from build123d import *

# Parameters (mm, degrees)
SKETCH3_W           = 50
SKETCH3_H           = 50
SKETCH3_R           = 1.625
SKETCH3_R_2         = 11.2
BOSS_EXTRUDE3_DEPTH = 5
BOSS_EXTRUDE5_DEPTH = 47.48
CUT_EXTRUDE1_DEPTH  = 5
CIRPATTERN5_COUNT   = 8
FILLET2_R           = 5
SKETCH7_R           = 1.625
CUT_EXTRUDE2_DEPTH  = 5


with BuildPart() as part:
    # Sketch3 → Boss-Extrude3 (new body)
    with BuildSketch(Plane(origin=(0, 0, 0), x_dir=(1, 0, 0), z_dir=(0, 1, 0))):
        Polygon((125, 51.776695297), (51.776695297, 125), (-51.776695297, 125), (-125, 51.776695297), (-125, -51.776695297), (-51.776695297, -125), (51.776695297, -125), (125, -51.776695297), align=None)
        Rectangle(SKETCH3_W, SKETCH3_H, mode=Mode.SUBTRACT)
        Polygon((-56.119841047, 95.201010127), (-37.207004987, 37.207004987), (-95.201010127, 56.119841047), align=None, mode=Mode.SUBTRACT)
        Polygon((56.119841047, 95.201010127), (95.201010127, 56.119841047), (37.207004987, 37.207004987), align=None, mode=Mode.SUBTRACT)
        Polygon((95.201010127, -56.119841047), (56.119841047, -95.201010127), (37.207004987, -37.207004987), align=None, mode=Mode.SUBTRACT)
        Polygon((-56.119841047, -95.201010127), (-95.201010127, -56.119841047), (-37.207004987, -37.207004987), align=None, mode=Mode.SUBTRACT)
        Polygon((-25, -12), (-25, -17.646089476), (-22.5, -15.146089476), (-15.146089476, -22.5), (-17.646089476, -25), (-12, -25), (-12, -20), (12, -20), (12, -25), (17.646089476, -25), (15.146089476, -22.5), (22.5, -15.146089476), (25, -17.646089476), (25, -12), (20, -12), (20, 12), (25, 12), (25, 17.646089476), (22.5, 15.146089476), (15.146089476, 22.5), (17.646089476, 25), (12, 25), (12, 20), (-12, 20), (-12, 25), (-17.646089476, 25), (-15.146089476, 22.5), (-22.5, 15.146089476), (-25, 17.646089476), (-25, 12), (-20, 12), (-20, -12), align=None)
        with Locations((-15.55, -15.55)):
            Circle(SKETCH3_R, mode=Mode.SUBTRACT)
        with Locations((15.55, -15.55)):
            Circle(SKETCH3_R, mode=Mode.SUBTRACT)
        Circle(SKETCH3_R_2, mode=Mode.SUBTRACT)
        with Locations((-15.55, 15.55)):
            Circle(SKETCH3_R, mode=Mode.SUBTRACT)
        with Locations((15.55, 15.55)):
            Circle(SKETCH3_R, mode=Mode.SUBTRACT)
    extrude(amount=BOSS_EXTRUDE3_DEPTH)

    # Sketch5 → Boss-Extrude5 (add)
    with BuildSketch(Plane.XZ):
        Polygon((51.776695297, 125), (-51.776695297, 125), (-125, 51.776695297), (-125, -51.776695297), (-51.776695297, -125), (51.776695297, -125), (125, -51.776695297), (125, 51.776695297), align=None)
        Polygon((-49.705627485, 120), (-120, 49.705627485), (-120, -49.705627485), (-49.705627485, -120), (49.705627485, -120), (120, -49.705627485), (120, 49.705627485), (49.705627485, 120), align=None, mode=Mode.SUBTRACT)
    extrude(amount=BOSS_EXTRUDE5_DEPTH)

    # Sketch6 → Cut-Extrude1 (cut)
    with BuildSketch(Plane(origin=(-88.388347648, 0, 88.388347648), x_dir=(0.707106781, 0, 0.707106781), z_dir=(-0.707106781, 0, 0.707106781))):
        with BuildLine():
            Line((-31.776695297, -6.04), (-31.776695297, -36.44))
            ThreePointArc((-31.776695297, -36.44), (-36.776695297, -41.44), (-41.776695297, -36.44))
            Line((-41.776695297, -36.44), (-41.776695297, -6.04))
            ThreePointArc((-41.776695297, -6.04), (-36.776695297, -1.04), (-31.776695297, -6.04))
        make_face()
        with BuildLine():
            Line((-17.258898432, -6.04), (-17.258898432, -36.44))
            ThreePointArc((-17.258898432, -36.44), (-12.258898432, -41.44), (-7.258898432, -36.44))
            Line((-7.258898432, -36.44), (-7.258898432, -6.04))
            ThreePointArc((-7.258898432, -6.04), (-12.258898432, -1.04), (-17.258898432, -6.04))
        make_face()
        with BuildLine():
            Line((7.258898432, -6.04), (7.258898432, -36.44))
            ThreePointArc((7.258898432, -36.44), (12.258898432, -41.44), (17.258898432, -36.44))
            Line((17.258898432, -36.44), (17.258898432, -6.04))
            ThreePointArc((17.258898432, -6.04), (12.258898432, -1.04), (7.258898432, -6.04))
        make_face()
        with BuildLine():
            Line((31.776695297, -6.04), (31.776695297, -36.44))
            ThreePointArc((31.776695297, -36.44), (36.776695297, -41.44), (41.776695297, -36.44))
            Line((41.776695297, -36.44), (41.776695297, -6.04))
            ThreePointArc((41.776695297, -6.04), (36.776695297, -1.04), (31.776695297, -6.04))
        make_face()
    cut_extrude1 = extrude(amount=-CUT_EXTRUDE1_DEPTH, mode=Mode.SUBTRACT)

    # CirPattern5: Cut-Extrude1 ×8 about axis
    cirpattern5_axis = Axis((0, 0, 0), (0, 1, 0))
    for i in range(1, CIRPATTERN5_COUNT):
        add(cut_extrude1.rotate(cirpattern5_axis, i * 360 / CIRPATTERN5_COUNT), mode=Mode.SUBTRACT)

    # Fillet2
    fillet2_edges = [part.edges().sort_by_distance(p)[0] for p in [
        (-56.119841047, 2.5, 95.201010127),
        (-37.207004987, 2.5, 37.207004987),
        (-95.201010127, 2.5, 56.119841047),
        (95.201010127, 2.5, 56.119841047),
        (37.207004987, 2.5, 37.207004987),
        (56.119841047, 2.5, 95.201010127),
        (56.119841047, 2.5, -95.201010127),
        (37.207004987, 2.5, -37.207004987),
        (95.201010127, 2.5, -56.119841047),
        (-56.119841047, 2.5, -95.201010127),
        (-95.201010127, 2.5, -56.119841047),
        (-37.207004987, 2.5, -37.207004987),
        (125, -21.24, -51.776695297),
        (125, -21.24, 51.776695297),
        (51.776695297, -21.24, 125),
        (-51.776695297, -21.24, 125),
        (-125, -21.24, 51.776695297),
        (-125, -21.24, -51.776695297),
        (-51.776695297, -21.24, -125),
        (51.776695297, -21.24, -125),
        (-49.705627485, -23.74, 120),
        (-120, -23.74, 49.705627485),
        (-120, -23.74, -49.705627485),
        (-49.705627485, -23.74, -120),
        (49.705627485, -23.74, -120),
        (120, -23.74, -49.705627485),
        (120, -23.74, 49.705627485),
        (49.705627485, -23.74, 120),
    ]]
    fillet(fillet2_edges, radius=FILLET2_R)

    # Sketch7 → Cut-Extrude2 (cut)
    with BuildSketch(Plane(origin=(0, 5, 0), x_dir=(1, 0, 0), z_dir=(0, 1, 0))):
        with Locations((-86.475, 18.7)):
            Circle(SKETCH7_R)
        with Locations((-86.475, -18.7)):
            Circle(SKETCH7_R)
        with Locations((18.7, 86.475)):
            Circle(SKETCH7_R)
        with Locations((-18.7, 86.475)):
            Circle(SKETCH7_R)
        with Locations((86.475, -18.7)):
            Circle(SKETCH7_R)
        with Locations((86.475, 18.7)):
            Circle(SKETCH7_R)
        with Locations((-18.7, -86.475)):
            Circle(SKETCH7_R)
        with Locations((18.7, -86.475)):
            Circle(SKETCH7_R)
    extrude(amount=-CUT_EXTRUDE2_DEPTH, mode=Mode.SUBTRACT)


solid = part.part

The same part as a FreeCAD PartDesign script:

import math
import FreeCAD as App
import Part
import Sketcher
Q = App.Units.Quantity


def edges_at(feature, points):
    """Names of the edges that pass closest to the given points."""
    edges = feature.Shape.Edges
    near = lambda p: min(range(len(edges)), key=lambda i: edges[i].distToShape(Part.Vertex(*p))[0])
    return sorted({f"Edge{near(p) + 1}" for p in points})


def add_polygon(sketch, points):
    """Adds a closed chain of lines whose ends are joined by coincident constraints."""
    first, n = sketch.GeometryCount, len(points)
    for a, b in zip(points, points[1:] + points[:1]):
        sketch.addGeometry(Part.LineSegment(App.Vector(*a, 0), App.Vector(*b, 0)), False)
    for i in range(n):
        sketch.addConstraint(Sketcher.Constraint("Coincident", first + i, 2, first + (i + 1) % n, 1))

doc = App.newDocument("Part")
params = doc.addObject("Spreadsheet::Sheet", "Params")
for row, (alias, value) in enumerate([
    ("sketch1_diameter", "22.4 mm"),
    ("sketch1_diameter2", "3.25 mm"),
    ("sketch1_width", "24 mm"),
    ("sketch1_width2", "5 mm"),
    ("sketch1_length", "61 mm"),
    ("pad1_length", "5 mm"),
    ("pad2_length", "47.48 mm"),
    ("sketch3_radius", "5 mm"),
    ("sketch3_height", "30.4 mm"),
    ("pocket1_length", "5 mm"),
    ("fillet_radius", "5 mm"),
    ("sketch4_diameter", "3.25 mm"),
    ("pocket2_length", "5 mm"),
], start=1):
    params.set(f"A{row}", alias)
    params.set(f"B{row}", "=" + value)
    params.setAlias(f"B{row}", alias)

body = doc.addObject("PartDesign::Body", "Body")

# Sketch on XZ plane
sketch1 = doc.addObject("Sketcher::SketchObject", "Sketch")
body.addObject(sketch1)
sketch1.AttachmentSupport = (doc.XZ_Plane, [""])
sketch1.MapMode = "FlatFace"
add_polygon(sketch1, [(125, -51.8), (51.8, -125), (-51.8, -125), (-125, -51.8), (-125, 51.8), (-51.8, 125), (51.8, 125), (125, 51.8)])  # lines 0-7
add_polygon(sketch1, [(-37.2, 37.2), (-56.1, 95.2), (-95.2, 56.1)])  # lines 8-10
add_polygon(sketch1, [(-17.6, 25), (-25, 25), (-25, 17.6), (-22.5, 15.1), (-15.1, 22.5)])  # lines 11-15
sketch1.addGeometry(Part.Circle(App.Vector(-15.6, 15.6, 0), App.Vector(0, 0, 1), 1.6), False)  # 16
add_polygon(sketch1, [(37.2, 37.2), (95.2, 56.1), (56.1, 95.2)])  # lines 17-19
add_polygon(sketch1, [(12, 25), (-12, 25), (-12, 20), (12, 20)])  # lines 20-23
add_polygon(sketch1, [(25, 25), (17.6, 25), (15.1, 22.5), (22.5, 15.1), (25, 17.6)])  # lines 24-28
sketch1.addGeometry(Part.Circle(App.Vector(15.6, 15.6, 0), App.Vector(0, 0, 1), 1.6), False)  # 29
add_polygon(sketch1, [(-25, 12), (-25, -12), (-20, -12), (-20, 12)])  # lines 30-33
sketch1.addGeometry(Part.Circle(App.Vector(-15.6, -15.6, 0), App.Vector(0, 0, 1), 1.6), False)  # 34
add_polygon(sketch1, [(-25, -17.6), (-25, -25), (-17.6, -25), (-15.1, -22.5), (-22.5, -15.1)])  # lines 35-39
add_polygon(sketch1, [(-95.2, -56.1), (-56.1, -95.2), (-37.2, -37.2)])  # lines 40-42
sketch1.addGeometry(Part.Circle(App.Vector(0, 0, 0), App.Vector(0, 0, 1), 11.2), False)  # 43
add_polygon(sketch1, [(25, -12), (25, 12), (20, 12), (20, -12)])  # lines 44-47
add_polygon(sketch1, [(-12, -25), (12, -25), (12, -20), (-12, -20)])  # lines 48-51
sketch1.addGeometry(Part.Circle(App.Vector(15.6, -15.6, 0), App.Vector(0, 0, 1), 1.6), False)  # 52
add_polygon(sketch1, [(25, -25), (25, -17.6), (22.5, -15.1), (15.1, -22.5), (17.6, -25)])  # lines 53-57
add_polygon(sketch1, [(37.2, -37.2), (56.1, -95.2), (95.2, -56.1)])  # lines 58-60
sketch1.addConstraint([
    Sketcher.Constraint("Horizontal", 1),
    Sketcher.Constraint("Vertical", 3),
    Sketcher.Constraint("Horizontal", 5),
    Sketcher.Constraint("Vertical", 7),
    Sketcher.Constraint("Horizontal", 11),
    Sketcher.Constraint("Vertical", 12),
    Sketcher.Constraint("Horizontal", 20),
    Sketcher.Constraint("Vertical", 21),
    Sketcher.Constraint("Horizontal", 22),
    Sketcher.Constraint("Vertical", 23),
    Sketcher.Constraint("Horizontal", 24),
    Sketcher.Constraint("Vertical", 28),
    Sketcher.Constraint("Vertical", 30),
    Sketcher.Constraint("Horizontal", 31),
    Sketcher.Constraint("Vertical", 32),
    Sketcher.Constraint("Horizontal", 33),
    Sketcher.Constraint("Vertical", 35),
    Sketcher.Constraint("Horizontal", 36),
    Sketcher.Constraint("Vertical", 44),
    Sketcher.Constraint("Horizontal", 45),
    Sketcher.Constraint("Vertical", 46),
    Sketcher.Constraint("Horizontal", 47),
    Sketcher.Constraint("Horizontal", 48),
    Sketcher.Constraint("Vertical", 49),
    Sketcher.Constraint("Horizontal", 50),
    Sketcher.Constraint("Vertical", 51),
    Sketcher.Constraint("Vertical", 53),
    Sketcher.Constraint("Horizontal", 57),
    Sketcher.Constraint("Coincident", 43, 3, -1, 1),
    Sketcher.Constraint("Equal", 16, 29),
    Sketcher.Constraint("Equal", 29, 34),
    Sketcher.Constraint("Equal", 34, 52),
    Sketcher.Constraint("Symmetric", 29, 3, 34, 3, -1, 1),
    Sketcher.Constraint("Symmetric", 16, 3, 52, 3, -1, 1),
    Sketcher.Constraint("Symmetric", 0, 2, 4, 2, -1, 1),
    Sketcher.Constraint("Symmetric", 2, 2, 6, 2, -1, 1),
    Sketcher.Constraint("Symmetric", 28, 2, 35, 2, -1, 1),
    Sketcher.Constraint("Symmetric", 25, 2, 37, 2, -1, 1),
    Sketcher.Constraint("Symmetric", 26, 2, 38, 2, -1, 1),
    Sketcher.Constraint("Symmetric", 18, 2, 40, 2, -1, 1),
    Sketcher.Constraint("Symmetric", 19, 2, 41, 2, -1, 1),
    Sketcher.Constraint("Symmetric", 17, 2, 42, 2, -1, 1),
    Sketcher.Constraint("Symmetric", 30, 2, 44, 2, -1, 1),
    Sketcher.Constraint("Symmetric", 32, 2, 46, 2, -1, 1),
    Sketcher.Constraint("Symmetric", 20, 2, 48, 2, -1, 1),
    Sketcher.Constraint("Symmetric", 22, 2, 50, 2, -1, 1),
    Sketcher.Constraint("Symmetric", 12, 2, 53, 2, -1, 1),
    Sketcher.Constraint("Symmetric", 13, 2, 54, 2, -1, 1),
    Sketcher.Constraint("Symmetric", 14, 2, 55, 2, -1, 1),
    Sketcher.Constraint("Symmetric", 15, 2, 56, 2, -1, 1),
    Sketcher.Constraint("Symmetric", 8, 2, 58, 2, -1, 1),
    Sketcher.Constraint("Symmetric", 9, 2, 59, 2, -1, 1),
    Sketcher.Constraint("Symmetric", 10, 2, 60, 2, -1, 1),
    Sketcher.Constraint("Symmetric", 16, 3, 29, 3, -2),
    Sketcher.Constraint("Symmetric", 9, 2, 17, 2, -2),
    Sketcher.Constraint("Symmetric", 8, 2, 18, 2, -2),
    Sketcher.Constraint("Symmetric", 10, 2, 19, 2, -2),
    Sketcher.Constraint("Symmetric", 15, 2, 24, 2, -2),
    Sketcher.Constraint("Symmetric", 14, 2, 25, 2, -2),
    Sketcher.Constraint("Symmetric", 13, 2, 26, 2, -2),
    Sketcher.Constraint("Symmetric", 12, 2, 27, 2, -2),
    Sketcher.Constraint("Perpendicular", 0, 2),
    Sketcher.Constraint("Perpendicular", 2, 4),
    Sketcher.Constraint("Perpendicular", 4, 6),
    Sketcher.Constraint("Perpendicular", 6, 9),
    Sketcher.Constraint("Perpendicular", 9, 13),
    Sketcher.Constraint("Perpendicular", 13, 14),
    Sketcher.Constraint("Perpendicular", 14, 15),
    Sketcher.Constraint("Perpendicular", 8, 17),
    Sketcher.Constraint("Parallel", 15, 18),
    Sketcher.Constraint("Parallel", 27, 37),
    Sketcher.Constraint("Perpendicular", 38, 39),
    Sketcher.Constraint("Horizontal", 3, 2, 6, 2),
    Sketcher.Constraint("Horizontal", 15, 2, 20, 2),
    Sketcher.Constraint("Horizontal", 33, 2, 44, 2),
    Sketcher.Constraint("Vertical", 12, 2, 30, 2),
    Sketcher.Constraint("Vertical", 23, 2, 48, 2),
    Sketcher.Constraint("Equal", 5, 3),
    Sketcher.Constraint("Equal", 57, 12),
    Sketcher.Constraint("Equal", 47, 21),
    Sketcher.Constraint("Equal", 50, 30),
    Sketcher.Constraint("Diameter", 43, Q("22.4 mm")),
    Sketcher.Constraint("Diameter", 16, Q("3.25 mm")),
    Sketcher.Constraint("DistanceX", 20, 2, 20, 1, Q("24 mm")),
    Sketcher.Constraint("DistanceX", 31, 1, 31, 2, Q("5 mm")),
    Sketcher.Constraint("Distance", 8, Q("61 mm")),
    Sketcher.Constraint("DistanceY", 0, 2, -1, 1, Q("125 mm")),
    Sketcher.Constraint("DistanceX", 11, 2, -1, 1, Q("25 mm")),
    Sketcher.Constraint("DistanceY", -1, 1, 11, 2, Q("25 mm")),
    Sketcher.Constraint("Distance", 14, Q("10.4 mm")),
    Sketcher.Constraint("DistanceX", 13, 2, -1, 1, Q("22.5 mm")),
    Sketcher.Constraint("DistanceX", 16, 3, -1, 1, Q("15.55 mm")),
    Sketcher.Constraint("DistanceY", -1, 1, 16, 3, Q("15.55 mm")),
    Sketcher.Constraint("DistanceX", 1, 2, 1, 1, Q("103.553391 mm")),
    Sketcher.Constraint("Distance", 9, Q("55.269119 mm")),
    Sketcher.Constraint("DistanceX", 8, 2, -1, 1, Q("56.119841 mm")),
    Sketcher.Constraint("DistanceY", -1, 1, 8, 2, Q("95.20101 mm")),
])
sketch1.setExpression("Constraints[137]", "Params.sketch1_diameter")
sketch1.setExpression("Constraints[138]", "Params.sketch1_diameter2")
sketch1.setExpression("Constraints[139]", "Params.sketch1_width")
sketch1.setExpression("Constraints[140]", "Params.sketch1_width2")
sketch1.setExpression("Constraints[141]", "Params.sketch1_length")
pad1 = doc.addObject("PartDesign::Pad", "Pad")
body.addObject(pad1)
pad1.Profile = sketch1
pad1.setExpression("Length", "Params.pad1_length")
pad1.Reversed = True

# Sketch on XZ plane
sketch2 = doc.addObject("Sketcher::SketchObject", "Sketch001")
body.addObject(sketch2)
sketch2.AttachmentSupport = (doc.XZ_Plane, [""])
sketch2.MapMode = "FlatFace"
add_polygon(sketch2, [(52, 125), (-52, 125), (-125, 52), (-125, -52), (-52, -125), (52, -125), (125, -52), (125, 52)])  # lines 0-7
add_polygon(sketch2, [(-120, 50), (-50, 120), (50, 120), (120, 50), (120, -50), (50, -120), (-50, -120), (-120, -50)])  # lines 8-15
sketch2.addConstraint([
    Sketcher.Constraint("Horizontal", 0),
    Sketcher.Constraint("Vertical", 2),
    Sketcher.Constraint("Horizontal", 4),
    Sketcher.Constraint("Vertical", 6),
    Sketcher.Constraint("Horizontal", 9),
    Sketcher.Constraint("Vertical", 11),
    Sketcher.Constraint("Horizontal", 13),
    Sketcher.Constraint("Vertical", 15),
    Sketcher.Constraint("Symmetric", 0, 2, 4, 2, -1, 1),
    Sketcher.Constraint("Symmetric", 1, 2, 5, 2, -1, 1),
    Sketcher.Constraint("Symmetric", 8, 2, 12, 2, -1, 1),
    Sketcher.Constraint("Symmetric", 10, 2, 14, 2, -1, 1),
    Sketcher.Constraint("Perpendicular", 1, 3),
    Sketcher.Constraint("Perpendicular", 5, 7),
    Sketcher.Constraint("Perpendicular", 7, 8),
    Sketcher.Constraint("Perpendicular", 8, 10),
    Sketcher.Constraint("Perpendicular", 10, 12),
    Sketcher.Constraint("Perpendicular", 12, 14),
    Sketcher.Constraint("Horizontal", 2, 2, 5, 2),
    Sketcher.Constraint("Horizontal", 1, 2, 6, 2),
    Sketcher.Constraint("Horizontal", 11, 2, 14, 2),
    Sketcher.Constraint("Vertical", 0, 2, 3, 2),
    Sketcher.Constraint("Equal", 4, 2),
    Sketcher.Constraint("Equal", 13, 11),
    Sketcher.Constraint("DistanceY", -1, 1, 0, 2, Q("125 mm")),
    Sketcher.Constraint("DistanceY", -1, 1, 8, 2, Q("120 mm")),
    Sketcher.Constraint("DistanceX", 0, 2, 0, 1, Q("103.553391 mm")),
    Sketcher.Constraint("DistanceX", 9, 1, 9, 2, Q("99.411255 mm")),
])
pad2 = doc.addObject("PartDesign::Pad", "Pad001")
body.addObject(pad2)
pad2.Profile = sketch2
pad2.setExpression("Length", "Params.pad2_length")

# Sketch on an angled plane
sketch3 = doc.addObject("Sketcher::SketchObject", "Sketch002")
body.addObject(sketch3)
sketch3.Placement = App.Placement(App.Vector(-88.388348, 0, 88.388348), App.Rotation(App.Vector(0.707106781, 0, 0.707106781), App.Vector(0, 0.999999999, 0), App.Vector(-0.707106781, 0, 0.707106781), "ZXY"))
sketch3.addGeometry([
    Part.LineSegment(App.Vector(-32, -36, 0), App.Vector(-32, -6, 0)),  # 0
    Part.ArcOfCircle(Part.Circle(App.Vector(-37, -6, 0), App.Vector(0, 0, 1), 5), math.radians(0), math.radians(180)),  # 1
    Part.LineSegment(App.Vector(-42, -6, 0), App.Vector(-42, -36, 0)),  # 2
    Part.ArcOfCircle(Part.Circle(App.Vector(-37, -36, 0), App.Vector(0, 0, 1), 5), math.radians(180), math.radians(360)),  # 3
    Part.LineSegment(App.Vector(-17, -6, 0), App.Vector(-17, -36, 0)),  # 4
    Part.ArcOfCircle(Part.Circle(App.Vector(-12, -36, 0), App.Vector(0, 0, 1), 5), math.radians(180), math.radians(360)),  # 5
    Part.LineSegment(App.Vector(-7, -36, 0), App.Vector(-7, -6, 0)),  # 6
    Part.ArcOfCircle(Part.Circle(App.Vector(-12, -6, 0), App.Vector(0, 0, 1), 5), math.radians(0), math.radians(180)),  # 7
    Part.LineSegment(App.Vector(7, -6, 0), App.Vector(7, -36, 0)),  # 8
    Part.ArcOfCircle(Part.Circle(App.Vector(12, -36, 0), App.Vector(0, 0, 1), 5), math.radians(180), math.radians(360)),  # 9
    Part.LineSegment(App.Vector(17, -36, 0), App.Vector(17, -6, 0)),  # 10
    Part.ArcOfCircle(Part.Circle(App.Vector(12, -6, 0), App.Vector(0, 0, 1), 5), math.radians(0), math.radians(180)),  # 11
    Part.LineSegment(App.Vector(32, -6, 0), App.Vector(32, -36, 0)),  # 12
    Part.ArcOfCircle(Part.Circle(App.Vector(37, -36, 0), App.Vector(0, 0, 1), 5), math.radians(180), math.radians(360)),  # 13
    Part.LineSegment(App.Vector(42, -36, 0), App.Vector(42, -6, 0)),  # 14
    Part.ArcOfCircle(Part.Circle(App.Vector(37, -6, 0), App.Vector(0, 0, 1), 5), math.radians(0), math.radians(180)),  # 15
], False)
sketch3.addConstraint([
    Sketcher.Constraint("Tangent", 0, 2, 1, 1),
    Sketcher.Constraint("Tangent", 1, 2, 2, 1),
    Sketcher.Constraint("Tangent", 2, 2, 3, 1),
    Sketcher.Constraint("Tangent", 3, 2, 0, 1),
    Sketcher.Constraint("Tangent", 4, 2, 5, 1),
    Sketcher.Constraint("Tangent", 5, 2, 6, 1),
    Sketcher.Constraint("Tangent", 6, 2, 7, 1),
    Sketcher.Constraint("Tangent", 7, 2, 4, 1),
    Sketcher.Constraint("Tangent", 8, 2, 9, 1),
    Sketcher.Constraint("Tangent", 9, 2, 10, 1),
    Sketcher.Constraint("Tangent", 10, 2, 11, 1),
    Sketcher.Constraint("Tangent", 11, 2, 8, 1),
    Sketcher.Constraint("Tangent", 12, 2, 13, 1),
    Sketcher.Constraint("Tangent", 13, 2, 14, 1),
    Sketcher.Constraint("Tangent", 14, 2, 15, 1),
    Sketcher.Constraint("Tangent", 15, 2, 12, 1),
    Sketcher.Constraint("Vertical", 0),
    Sketcher.Constraint("Vertical", 2),
    Sketcher.Constraint("Vertical", 4),
    Sketcher.Constraint("Vertical", 6),
    Sketcher.Constraint("Vertical", 8),
    Sketcher.Constraint("Vertical", 10),
    Sketcher.Constraint("Vertical", 12),
    Sketcher.Constraint("Vertical", 14),
    Sketcher.Constraint("Equal", 3, 5),
    Sketcher.Constraint("Equal", 7, 9),
    Sketcher.Constraint("Equal", 11, 13),
    Sketcher.Constraint("Symmetric", 5, 3, 9, 3, -2),
    Sketcher.Constraint("Symmetric", 3, 3, 13, 3, -2),
    Sketcher.Constraint("Horizontal", 3, 3, 5, 3),
    Sketcher.Constraint("Horizontal", 1, 3, 7, 3),
    Sketcher.Constraint("Horizontal", 7, 3, 11, 3),
    Sketcher.Constraint("Horizontal", 11, 3, 15, 3),
    Sketcher.Constraint("Radius", 1, Q("5 mm")),
    Sketcher.Constraint("DistanceY", 0, 1, 0, 2, Q("30.4 mm")),
    Sketcher.Constraint("DistanceY", 1, 3, -1, 1, Q("6.04 mm")),
    Sketcher.Constraint("DistanceX", 5, 3, -1, 1, Q("12.258898 mm")),
    Sketcher.Constraint("DistanceX", 3, 3, 13, 3, Q("73.553391 mm")),
])
sketch3.setExpression("Constraints[33]", "Params.sketch3_radius")
sketch3.setExpression("Constraints[34]", "Params.sketch3_height")
pocket1 = doc.addObject("PartDesign::Pocket", "Pocket")
body.addObject(pocket1)
pocket1.Profile = sketch3
pocket1.setExpression("Length", "Params.pocket1_length")
doc.recompute()

polarpattern = doc.addObject("PartDesign::PolarPattern", "PolarPattern")
body.addObject(polarpattern)
polarpattern.Originals = [pocket1]
polarpattern.Axis = (doc.Y_Axis, [""])
polarpattern.Angle = 360
polarpattern.Occurrences = 8
body.Tip = polarpattern
doc.recompute()

fillet = doc.addObject("PartDesign::Fillet", "Fillet")
body.addObject(fillet)
fillet.Base = (polarpattern, edges_at(polarpattern, [
    (-56.12, 2.5, 95.201),
    (-37.207, 2.5, 37.207),
    (-95.201, 2.5, 56.12),
    (95.201, 2.5, 56.12),
    (37.207, 2.5, 37.207),
    (56.12, 2.5, 95.201),
    (56.12, 2.5, -95.201),
    (37.207, 2.5, -37.207),
    (95.201, 2.5, -56.12),
    (-56.12, 2.5, -95.201),
    (-95.201, 2.5, -56.12),
    (-37.207, 2.5, -37.207),
    (125, -21.24, -51.777),
    (125, -21.24, 51.777),
    (51.777, -21.24, 125),
    (-51.777, -21.24, 125),
    (-125, -21.24, 51.777),
    (-125, -21.24, -51.777),
    (-51.777, -21.24, -125),
    (51.777, -21.24, -125),
    (-49.706, -23.74, 120),
    (-120, -23.74, 49.706),
    (-120, -23.74, -49.706),
    (-49.706, -23.74, -120),
    (49.706, -23.74, -120),
    (120, -23.74, -49.706),
    (120, -23.74, 49.706),
    (49.706, -23.74, 120),
]))
fillet.setExpression("Radius", "Params.fillet_radius")

# Sketch on XZ plane
sketch4 = doc.addObject("Sketcher::SketchObject", "Sketch003")
body.addObject(sketch4)
sketch4.AttachmentSupport = (doc.XZ_Plane, [""])
sketch4.MapMode = "FlatFace"
sketch4.AttachmentOffset = App.Placement(App.Vector(0, 0, -5), App.Rotation())
sketch4.addGeometry([
    Part.Circle(App.Vector(-86.5, -18.7, 0), App.Vector(0, 0, 1), 1.6),  # 0
    Part.Circle(App.Vector(-86.5, 18.7, 0), App.Vector(0, 0, 1), 1.6),  # 1
    Part.Circle(App.Vector(18.7, -86.5, 0), App.Vector(0, 0, 1), 1.6),  # 2
    Part.Circle(App.Vector(-18.7, -86.5, 0), App.Vector(0, 0, 1), 1.6),  # 3
    Part.Circle(App.Vector(86.5, 18.7, 0), App.Vector(0, 0, 1), 1.6),  # 4
    Part.Circle(App.Vector(86.5, -18.7, 0), App.Vector(0, 0, 1), 1.6),  # 5
    Part.Circle(App.Vector(-18.7, 86.5, 0), App.Vector(0, 0, 1), 1.6),  # 6
    Part.Circle(App.Vector(18.7, 86.5, 0), App.Vector(0, 0, 1), 1.6),  # 7
], False)
sketch4.addConstraint([
    Sketcher.Constraint("Equal", 0, 1),
    Sketcher.Constraint("Equal", 1, 2),
    Sketcher.Constraint("Equal", 2, 3),
    Sketcher.Constraint("Equal", 3, 4),
    Sketcher.Constraint("Equal", 4, 5),
    Sketcher.Constraint("Equal", 5, 6),
    Sketcher.Constraint("Equal", 6, 7),
    Sketcher.Constraint("Symmetric", 0, 3, 4, 3, -1, 1),
    Sketcher.Constraint("Symmetric", 1, 3, 5, 3, -1, 1),
    Sketcher.Constraint("Symmetric", 2, 3, 6, 3, -1, 1),
    Sketcher.Constraint("Symmetric", 3, 3, 7, 3, -1, 1),
    Sketcher.Constraint("Symmetric", 2, 3, 3, 3, -2),
    Sketcher.Constraint("Symmetric", 1, 3, 4, 3, -2),
    Sketcher.Constraint("Diameter", 0, Q("3.25 mm")),
    Sketcher.Constraint("DistanceY", 0, 3, -1, 1, Q("18.7 mm")),
    Sketcher.Constraint("DistanceX", -1, 1, 2, 3, Q("18.7 mm")),
    Sketcher.Constraint("DistanceX", 1, 3, 4, 3, Q("172.95 mm")),
    Sketcher.Constraint("DistanceY", 3, 3, 6, 3, Q("172.95 mm")),
])
sketch4.setExpression("Constraints[13]", "Params.sketch4_diameter")
pocket2 = doc.addObject("PartDesign::Pocket", "Pocket001")
body.addObject(pocket2)
pocket2.Profile = sketch4
pocket2.setExpression("Length", "Params.pocket2_length")
pocket2.Reversed = True

doc.recompute()
